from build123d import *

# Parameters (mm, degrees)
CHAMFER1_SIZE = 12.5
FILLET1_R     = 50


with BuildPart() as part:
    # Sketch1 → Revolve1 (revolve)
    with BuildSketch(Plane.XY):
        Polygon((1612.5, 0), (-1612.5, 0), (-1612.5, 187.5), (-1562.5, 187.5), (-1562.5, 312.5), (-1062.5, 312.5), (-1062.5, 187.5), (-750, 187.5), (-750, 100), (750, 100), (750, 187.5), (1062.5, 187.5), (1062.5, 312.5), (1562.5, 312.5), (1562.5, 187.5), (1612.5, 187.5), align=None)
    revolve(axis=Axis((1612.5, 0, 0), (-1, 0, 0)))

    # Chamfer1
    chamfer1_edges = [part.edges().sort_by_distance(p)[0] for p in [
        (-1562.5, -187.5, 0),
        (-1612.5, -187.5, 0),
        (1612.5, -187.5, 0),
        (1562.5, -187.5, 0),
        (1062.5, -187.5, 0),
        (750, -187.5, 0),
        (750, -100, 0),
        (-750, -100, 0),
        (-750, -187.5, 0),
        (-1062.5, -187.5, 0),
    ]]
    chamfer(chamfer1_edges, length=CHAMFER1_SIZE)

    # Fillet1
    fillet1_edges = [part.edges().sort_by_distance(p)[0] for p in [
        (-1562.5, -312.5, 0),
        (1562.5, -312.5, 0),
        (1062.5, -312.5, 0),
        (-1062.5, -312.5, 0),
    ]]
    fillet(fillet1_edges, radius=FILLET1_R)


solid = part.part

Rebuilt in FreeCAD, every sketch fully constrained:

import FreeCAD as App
import Part
import Sketcher
from FreeCAD import Vector
Q = App.Units.Quantity


def edges_at(feature, points):
    """Names of the edges that pass closest to the given points."""
    edges = feature.Shape.Edges
    near = lambda p: min(range(len(edges)), key=lambda i: edges[i].distToShape(Part.Vertex(*p))[0])
    return sorted({f"Edge{near(p) + 1}" for p in points})

doc = App.newDocument("Part")
params = doc.addObject("Spreadsheet::Sheet", "Params")
for row, (alias, value) in enumerate([
    ("sketch1_width", "3225 mm"),
    ("sketch1_width2", "50 mm"),
    ("sketch1_width3", "500 mm"),
    ("sketch1_width4", "1500 mm"),
    ("sketch1_height", "125 mm"),
    ("revolution_angle", "360 deg"),
    ("chamfer_size", "12.5 mm"),
    ("fillet_radius", "50 mm"),
], start=1):
    params.set(f"A{row}", alias)
    params.set(f"B{row}", "=" + value)
    params.setAlias(f"B{row}", alias)

body = doc.addObject("PartDesign::Body", "Body")

# Sketch on XY plane
sketch1 = body.newObject("Sketcher::SketchObject", "Sketch")
sketch1.AttachmentSupport = (doc.getObject("XY_Plane"), [""])
sketch1.MapMode = "FlatFace"
sketch1.addGeometry([
    Part.LineSegment(Vector(-1612, 0, 0), Vector(1612, 0, 0)),  # 0
    Part.LineSegment(Vector(1612, 0, 0), Vector(1612, 188, 0)),  # 1
    Part.LineSegment(Vector(1612, 188, 0), Vector(1562, 188, 0)),  # 2
    Part.LineSegment(Vector(1562, 188, 0), Vector(1562, 312, 0)),  # 3
    Part.LineSegment(Vector(1562, 312, 0), Vector(1062, 312, 0)),  # 4
    Part.LineSegment(Vector(1062, 312, 0), Vector(1062, 188, 0)),  # 5
    Part.LineSegment(Vector(1062, 188, 0), Vector(750, 188, 0)),  # 6
    Part.LineSegment(Vector(750, 188, 0), Vector(750, 100, 0)),  # 7
    Part.LineSegment(Vector(750, 100, 0), Vector(-750, 100, 0)),  # 8
    Part.LineSegment(Vector(-750, 100, 0), Vector(-750, 188, 0)),  # 9
    Part.LineSegment(Vector(-750, 188, 0), Vector(-1062, 188, 0)),  # 10
    Part.LineSegment(Vector(-1062, 188, 0), Vector(-1062, 312, 0)),  # 11
    Part.LineSegment(Vector(-1062, 312, 0), Vector(-1562, 312, 0)),  # 12
    Part.LineSegment(Vector(-1562, 312, 0), Vector(-1562, 188, 0)),  # 13
    Part.LineSegment(Vector(-1562, 188, 0), Vector(-1612, 188, 0)),  # 14
    Part.LineSegment(Vector(-1612, 188, 0), Vector(-1612, 0, 0)),  # 15
], False)
sketch1.addConstraint([
    Sketcher.Constraint("Coincident", 0, 2, 1, 1),
    Sketcher.Constraint("Coincident", 1, 2, 2, 1),
    Sketcher.Constraint("Coincident", 2, 2, 3, 1),
    Sketcher.Constraint("Coincident", 3, 2, 4, 1),
    Sketcher.Constraint("Coincident", 4, 2, 5, 1),
    Sketcher.Constraint("Coincident", 5, 2, 6, 1),
    Sketcher.Constraint("Coincident", 6, 2, 7, 1),
    Sketcher.Constraint("Coincident", 7, 2, 8, 1),
    Sketcher.Constraint("Coincident", 8, 2, 9, 1),
    Sketcher.Constraint("Coincident", 9, 2, 10, 1),
    Sketcher.Constraint("Coincident", 10, 2, 11, 1),
    Sketcher.Constraint("Coincident", 11, 2, 12, 1),
    Sketcher.Constraint("Coincident", 12, 2, 13, 1),
    Sketcher.Constraint("Coincident", 13, 2, 14, 1),
    Sketcher.Constraint("Coincident", 14, 2, 15, 1),
    Sketcher.Constraint("Coincident", 15, 2, 0, 1),
    Sketcher.Constraint("Horizontal", 0),
    Sketcher.Constraint("Vertical", 1),
    Sketcher.Constraint("Horizontal", 2),
    Sketcher.Constraint("Vertical", 3),
    Sketcher.Constraint("Horizontal", 4),
    Sketcher.Constraint("Vertical", 5),
    Sketcher.Constraint("Horizontal", 6),
    Sketcher.Constraint("Vertical", 7),
    Sketcher.Constraint("Horizontal", 8),
    Sketcher.Constraint("Vertical", 9),
    Sketcher.Constraint("Horizontal", 10),
    Sketcher.Constraint("Vertical", 11),
    Sketcher.Constraint("Horizontal", 12),
    Sketcher.Constraint("Vertical", 13),
    Sketcher.Constraint("Horizontal", 14),
    Sketcher.Constraint("Vertical", 15),
    Sketcher.Constraint("Symmetric", 0, 2, 15, 2, -1, 1),
    Sketcher.Constraint("Symmetric", 6, 2, 9, 2, -2),
    Sketcher.Constraint("Symmetric", 4, 2, 11, 2, -2),
    Sketcher.Constraint("Symmetric", 2, 2, 13, 2, -2),
    Sketcher.Constraint("Horizontal", 2, 2, 5, 2),
    Sketcher.Constraint("DistanceX", 0, 1, 0, 2, Q("3225 mm")),
    Sketcher.Constraint("DistanceX", 2, 2, 2, 1, Q("50 mm")),
    Sketcher.Constraint("DistanceX", 4, 2, 4, 1, Q("500 mm")),
    Sketcher.Constraint("DistanceX", 8, 2, 8, 1, Q("1500 mm")),
    Sketcher.Constraint("DistanceY", 3, 1, 3, 2, Q("125 mm")),
    Sketcher.Constraint("DistanceY", 1, 1, 1, 2, Q("187.5 mm")),
    Sketcher.Constraint("DistanceY", 7, 2, 7, 1, Q("87.5 mm")),
])
sketch1.setExpression("Constraints[37]", "Params.sketch1_width")
sketch1.setExpression("Constraints[38]", "Params.sketch1_width2")
sketch1.setExpression("Constraints[39]", "Params.sketch1_width3")
sketch1.setExpression("Constraints[40]", "Params.sketch1_width4")
sketch1.setExpression("Constraints[41]", "Params.sketch1_height")
revolution = body.newObject("PartDesign::Revolution", "Revolution")
revolution.Profile = sketch1
revolution.ReferenceAxis = (sketch1, ["H_Axis"])
revolution.setExpression("Angle", "Params.revolution_angle")
doc.recompute()

chamfer = body.newObject("PartDesign::Chamfer", "Chamfer")
chamfer.Base = (revolution, edges_at(revolution, [
    (-1562.5, -187.5, 0),
    (-1612.5, -187.5, 0),
    (1612.5, -187.5, 0),
    (1562.5, -187.5, 0),
    (1062.5, -187.5, 0),
    (750, -187.5, 0),
    (750, -100, 0),
    (-750, -100, 0),
    (-750, -187.5, 0),
    (-1062.5, -187.5, 0),
]))
chamfer.setExpression("Size", "Params.chamfer_size")
doc.recompute()

fillet = body.newObject("PartDesign::Fillet", "Fillet")
fillet.Base = (chamfer, edges_at(chamfer, [
    (-1562.5, -312.5, 0),
    (1562.5, -312.5, 0),
    (1062.5, -312.5, 0),
    (-1062.5, -312.5, 0),
]))
fillet.setExpression("Radius", "Params.fillet_radius")

doc.recompute()
